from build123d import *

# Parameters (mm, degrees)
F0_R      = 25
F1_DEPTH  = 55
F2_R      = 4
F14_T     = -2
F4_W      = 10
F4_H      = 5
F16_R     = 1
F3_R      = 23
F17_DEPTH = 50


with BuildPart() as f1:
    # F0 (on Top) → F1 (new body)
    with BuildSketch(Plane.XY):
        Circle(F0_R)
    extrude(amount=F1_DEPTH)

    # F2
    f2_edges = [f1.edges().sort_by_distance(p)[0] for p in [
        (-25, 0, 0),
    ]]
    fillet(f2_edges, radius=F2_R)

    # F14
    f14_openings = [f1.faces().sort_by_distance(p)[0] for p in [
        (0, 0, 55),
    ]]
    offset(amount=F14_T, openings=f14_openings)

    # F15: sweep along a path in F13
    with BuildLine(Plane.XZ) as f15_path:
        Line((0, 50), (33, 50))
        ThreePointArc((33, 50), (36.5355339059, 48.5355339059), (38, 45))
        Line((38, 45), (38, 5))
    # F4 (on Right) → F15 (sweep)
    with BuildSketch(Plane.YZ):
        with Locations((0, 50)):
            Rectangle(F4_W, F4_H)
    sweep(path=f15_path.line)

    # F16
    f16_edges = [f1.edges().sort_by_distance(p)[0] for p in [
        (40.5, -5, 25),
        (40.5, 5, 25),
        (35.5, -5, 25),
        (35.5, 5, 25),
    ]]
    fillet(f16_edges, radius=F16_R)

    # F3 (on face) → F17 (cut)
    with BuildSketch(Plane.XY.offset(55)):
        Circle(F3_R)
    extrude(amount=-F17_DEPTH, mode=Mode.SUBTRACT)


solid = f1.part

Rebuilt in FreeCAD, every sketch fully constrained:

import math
import FreeCAD as App
import Part
import Sketcher
from FreeCAD import Vector
Q = App.Units.Quantity


def edges_at(feature, points):
    """Names of the edges that pass closest to the given points."""
    edges = feature.Shape.Edges
    near = lambda p: min(range(len(edges)), key=lambda i: edges[i].distToShape(Part.Vertex(*p))[0])
    return sorted({f"Edge{near(p) + 1}" for p in points})


def faces_at(feature, points):
    """Names of the faces that lie closest to the given points."""
    faces = feature.Shape.Faces
    near = lambda p: min(range(len(faces)), key=lambda i: faces[i].distToShape(Part.Vertex(*p))[0])
    return sorted({f"Face{near(p) + 1}" for p in points})


def add_polygon(sketch, points):
    """Adds a closed chain of lines whose ends are joined by coincident constraints."""
    first, n = sketch.GeometryCount, len(points)
    for a, b in zip(points, points[1:] + points[:1]):
        sketch.addGeometry(Part.LineSegment(App.Vector(*a, 0), App.Vector(*b, 0)), False)
    for i in range(n):
        sketch.addConstraint(Sketcher.Constraint("Coincident", first + i, 2, first + (i + 1) % n, 1))

doc = App.newDocument("Part")
body = doc.addObject("PartDesign::Body", "Body")

# Sketch on XY plane
sketch1 = body.newObject("Sketcher::SketchObject", "Sketch")
sketch1.AttachmentSupport = (doc.getObject("XY_Plane"), [""])
sketch1.MapMode = "FlatFace"
sketch1.addGeometry(Part.Circle(Vector(0, 0, 0), Vector(0, 0, 1), 25), False)
sketch1.addConstraint([
    Sketcher.Constraint("Coincident", 0, 3, -1, 1),
    Sketcher.Constraint("Diameter", 0, Q("50 mm")),
])
pad1 = body.newObject("PartDesign::Pad", "Pad")
pad1.Profile = sketch1
pad1.Length = 55
doc.recompute()

fillet = body.newObject("PartDesign::Fillet", "Fillet")
fillet.Base = (pad1, edges_at(pad1, [(-25, 0, 0)]))
fillet.Radius = 4
doc.recompute()

thickness = body.newObject("PartDesign::Thickness", "Thickness")
thickness.Base = (fillet, faces_at(fillet, [(0, 0, 55)]))
thickness.Value = 2
thickness.Reversed = True
thickness.Join = "Arc"

# Sketch on YZ plane
sketch2 = body.newObject("Sketcher::SketchObject", "Sketch001")
sketch2.AttachmentSupport = (doc.getObject("YZ_Plane"), [""])
sketch2.MapMode = "FlatFace"
add_polygon(sketch2, [(-5, 52), (-5, 48), (5, 48), (5, 52)])  # lines 0-3
sketch2.addConstraint([
    Sketcher.Constraint("Vertical", 0),
    Sketcher.Constraint("Horizontal", 1),
    Sketcher.Constraint("Vertical", 2),
    Sketcher.Constraint("Horizontal", 3),
    Sketcher.Constraint("DistanceX", 1, 1, 1, 2, Q("10 mm")),
    Sketcher.Constraint("DistanceY", 0, 2, 0, 1, Q("5 mm")),
    Sketcher.Constraint("DistanceX", 0, 2, -1, 1, Q("5 mm")),
    Sketcher.Constraint("DistanceY", -1, 1, 0, 2, Q("47.5 mm")),
])

# Sketch on XZ plane
sketch3 = body.newObject("Sketcher::SketchObject", "Sketch002")
sketch3.AttachmentSupport = (doc.getObject("XZ_Plane"), [""])
sketch3.MapMode = "FlatFace"
sketch3.addGeometry([
    Part.LineSegment(Vector(0, 50, 0), Vector(33, 50, 0)),
    Part.ArcOfCircle(Part.Circle(Vector(33, 45, 0), Vector(0, 0, 1), 5), math.radians(0), math.radians(90)),
    Part.LineSegment(Vector(38, 45, 0), Vector(38, 5, 0)),
], False)
sketch3.addConstraint([
    Sketcher.Constraint("Tangent", 0, 2, 1, 2),
    Sketcher.Constraint("Tangent", 1, 1, 2, 1),
    Sketcher.Constraint("Horizontal", 0),
    Sketcher.Constraint("Vertical", 2),
    Sketcher.Constraint("PointOnObject", 0, 1, -2),
    Sketcher.Constraint("Radius", 1, Q("5 mm")),
    Sketcher.Constraint("DistanceX", 0, 1, 0, 2, Q("33 mm")),
    Sketcher.Constraint("DistanceY", 2, 2, 2, 1, Q("40 mm")),
    Sketcher.Constraint("DistanceY", -1, 1, 1, 3, Q("45 mm")),
])
doc.recompute()

additivepipe = body.newObject("PartDesign::AdditivePipe", "AdditivePipe")
additivepipe.Profile = sketch2
additivepipe.Spine = (sketch3, ["Edge1", "Edge2", "Edge3"])
doc.recompute()

fillet2 = body.newObject("PartDesign::Fillet", "Fillet001")
fillet2.Base = (additivepipe, edges_at(additivepipe, [
    (40.5, -5, 25),
    (40.5, 5, 25),
    (35.5, -5, 25),
    (35.5, 5, 25),
]))
fillet2.Radius = 1

# Sketch on XY plane
sketch4 = body.newObject("Sketcher::SketchObject", "Sketch003")
sketch4.AttachmentSupport = (doc.getObject("XY_Plane"), [""])
sketch4.MapMode = "FlatFace"
sketch4.AttachmentOffset = App.Placement(Vector(0, 0, 55), App.Rotation())
sketch4.addGeometry(Part.Circle(Vector(0, 0, 0), Vector(0, 0, 1), 23), False)
sketch4.addConstraint([
    Sketcher.Constraint("Coincident", 0, 3, -1, 1),
    Sketcher.Constraint("Diameter", 0, Q("46 mm")),
])
pocket1 = body.newObject("PartDesign::Pocket", "Pocket")
pocket1.Profile = sketch4
pocket1.Length = 50

doc.recompute()
